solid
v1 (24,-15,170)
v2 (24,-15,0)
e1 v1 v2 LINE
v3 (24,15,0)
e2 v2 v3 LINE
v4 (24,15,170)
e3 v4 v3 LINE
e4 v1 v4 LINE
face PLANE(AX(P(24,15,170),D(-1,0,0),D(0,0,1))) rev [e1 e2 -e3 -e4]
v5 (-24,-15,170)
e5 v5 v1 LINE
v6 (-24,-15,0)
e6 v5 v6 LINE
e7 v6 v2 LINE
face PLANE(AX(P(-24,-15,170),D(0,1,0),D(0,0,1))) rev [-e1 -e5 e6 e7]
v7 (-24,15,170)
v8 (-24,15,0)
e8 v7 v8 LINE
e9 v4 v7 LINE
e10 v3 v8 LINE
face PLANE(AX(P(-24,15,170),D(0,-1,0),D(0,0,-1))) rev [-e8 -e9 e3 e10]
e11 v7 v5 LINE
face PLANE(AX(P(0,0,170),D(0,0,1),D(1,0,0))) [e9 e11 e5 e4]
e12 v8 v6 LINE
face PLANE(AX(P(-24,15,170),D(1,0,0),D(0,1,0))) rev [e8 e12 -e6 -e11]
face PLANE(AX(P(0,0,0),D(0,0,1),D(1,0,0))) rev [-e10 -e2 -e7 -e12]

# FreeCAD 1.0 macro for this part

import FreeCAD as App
import Part
import Sketcher

V = App.Vector
Q = App.Units.Quantity


def add_polygon(sketch, points):
    """Adds a closed chain of lines whose ends are joined by coincident constraints."""
    first, n = sketch.GeometryCount, len(points)
    for a, b in zip(points, points[1:] + points[:1]):
        sketch.addGeometry(Part.LineSegment(App.Vector(*a, 0), App.Vector(*b, 0)), False)
    for i in range(n):
        sketch.addConstraint(Sketcher.Constraint("Coincident", first + i, 2, first + (i + 1) % n, 1))

doc = App.newDocument("Part")
params = doc.addObject("Spreadsheet::Sheet", "Params")
for row, (alias, value) in enumerate([
    ("sketch1_width", "48 mm"),
    ("sketch1_height", "30 mm"),
    ("pad1_length", "170 mm"),
], start=1):
    params.set(f"A{row}", alias)
    params.set(f"B{row}", "=" + value)
    params.setAlias(f"B{row}", alias)

body = doc.addObject("PartDesign::Body", "Body")

# Sketch on XY plane
sketch1 = doc.addObject("Sketcher::SketchObject", "Sketch")
body.addObject(sketch1)
sketch1.AttachmentSupport = (doc.XY_Plane, [""])
sketch1.MapMode = "FlatFace"
add_polygon(sketch1, [(-24, 15), (-24, -15), (24, -15), (24, 15)])  # lines 0-3
sketch1.addConstraint([
    Sketcher.Constraint("Vertical", 0),
    Sketcher.Constraint("Horizontal", 1),
    Sketcher.Constraint("Vertical", 2),
    Sketcher.Constraint("Horizontal", 3),
    Sketcher.Constraint("Symmetric", 0, 2, 2, 2, -1, 1),
    Sketcher.Constraint("DistanceX", 1, 1, 1, 2, Q("48 mm")),
    Sketcher.Constraint("DistanceY", 0, 2, 0, 1, Q("30 mm")),
])
sketch1.setExpression("Constraints[9]", "Params.sketch1_width")
sketch1.setExpression("Constraints[10]", "Params.sketch1_height")
pad1 = doc.addObject("PartDesign::Pad", "Pad")
body.addObject(pad1)
pad1.Profile = sketch1
pad1.setExpression("Length", "Params.pad1_length")

doc.recompute()
